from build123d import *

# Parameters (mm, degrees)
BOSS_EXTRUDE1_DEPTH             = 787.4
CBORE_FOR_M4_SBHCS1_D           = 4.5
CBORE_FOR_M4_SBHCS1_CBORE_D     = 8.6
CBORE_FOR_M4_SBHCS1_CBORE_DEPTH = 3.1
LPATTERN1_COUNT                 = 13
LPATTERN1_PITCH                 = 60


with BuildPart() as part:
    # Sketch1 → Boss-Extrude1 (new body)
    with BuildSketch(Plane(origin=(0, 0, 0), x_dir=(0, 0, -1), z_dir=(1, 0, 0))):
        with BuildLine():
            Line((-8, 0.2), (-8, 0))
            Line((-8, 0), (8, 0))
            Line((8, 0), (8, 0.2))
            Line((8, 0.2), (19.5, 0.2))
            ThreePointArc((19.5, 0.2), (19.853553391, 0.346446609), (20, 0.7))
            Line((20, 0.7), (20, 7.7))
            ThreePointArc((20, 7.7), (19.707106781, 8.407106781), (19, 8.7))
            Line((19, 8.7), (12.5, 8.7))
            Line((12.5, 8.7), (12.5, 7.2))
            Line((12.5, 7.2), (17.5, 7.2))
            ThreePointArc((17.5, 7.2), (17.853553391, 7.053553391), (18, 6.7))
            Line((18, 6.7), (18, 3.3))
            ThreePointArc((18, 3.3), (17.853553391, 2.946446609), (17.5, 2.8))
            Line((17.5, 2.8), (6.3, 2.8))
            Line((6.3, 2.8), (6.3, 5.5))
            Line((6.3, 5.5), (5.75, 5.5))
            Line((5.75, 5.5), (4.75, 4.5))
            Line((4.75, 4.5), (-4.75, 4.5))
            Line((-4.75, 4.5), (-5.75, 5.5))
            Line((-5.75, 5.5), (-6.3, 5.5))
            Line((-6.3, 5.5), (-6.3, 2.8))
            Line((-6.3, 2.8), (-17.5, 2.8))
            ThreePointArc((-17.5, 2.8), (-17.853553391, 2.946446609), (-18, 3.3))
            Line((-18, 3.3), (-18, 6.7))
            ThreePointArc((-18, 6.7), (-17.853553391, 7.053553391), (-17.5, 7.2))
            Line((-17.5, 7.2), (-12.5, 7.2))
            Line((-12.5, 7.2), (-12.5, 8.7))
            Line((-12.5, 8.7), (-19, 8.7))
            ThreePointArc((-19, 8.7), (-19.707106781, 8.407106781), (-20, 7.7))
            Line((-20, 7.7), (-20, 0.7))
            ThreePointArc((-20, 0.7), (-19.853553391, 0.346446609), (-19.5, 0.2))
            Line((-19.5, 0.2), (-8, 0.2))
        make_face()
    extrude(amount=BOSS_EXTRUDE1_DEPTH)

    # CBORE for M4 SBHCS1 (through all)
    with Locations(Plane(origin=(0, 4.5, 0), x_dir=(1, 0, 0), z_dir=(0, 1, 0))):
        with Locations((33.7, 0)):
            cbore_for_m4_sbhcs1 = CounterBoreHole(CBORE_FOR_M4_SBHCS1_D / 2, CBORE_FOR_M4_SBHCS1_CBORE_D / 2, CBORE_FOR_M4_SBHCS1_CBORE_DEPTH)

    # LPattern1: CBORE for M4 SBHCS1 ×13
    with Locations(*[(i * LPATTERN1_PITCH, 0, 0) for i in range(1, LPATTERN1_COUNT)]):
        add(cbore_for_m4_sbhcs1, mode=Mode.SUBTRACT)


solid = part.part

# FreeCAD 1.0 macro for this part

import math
import FreeCAD as App
import Part
import Sketcher
from FreeCAD import Vector
Q = App.Units.Quantity

doc = App.newDocument("Part")
body = doc.addObject("PartDesign::Body", "Body")

sketch1 = doc.addObject("Sketcher::SketchObject", "Sketch")
body.addObject(sketch1)
sketch1.AttachmentSupport = (doc.YZ_Plane, [""])
sketch1.MapMode = "FlatFace"
sketch1.addGeometry([
    Part.LineSegment(Vector(0.2, 8, 0), Vector(0, 8, 0)),
    Part.LineSegment(Vector(0, 8, 0), Vector(0, -8, 0)),
    Part.LineSegment(Vector(0, -8, 0), Vector(0.2, -8, 0)),
    Part.LineSegment(Vector(0.2, -8, 0), Vector(0.2, -19.5, 0)),
    Part.ArcOfCircle(Part.Circle(Vector(0.7, -19.5, 0), Vector(0, 0, 1), 0.5), math.radians(180), math.radians(270)),
    Part.LineSegment(Vector(0.7, -20, 0), Vector(7.7, -20, 0)),
    Part.ArcOfCircle(Part.Circle(Vector(7.7, -19, 0), Vector(0, 0, 1), 1), math.radians(-90), math.radians(0)),
    Part.LineSegment(Vector(8.7, -19, 0), Vector(8.7, -12.5, 0)),
    Part.LineSegment(Vector(8.7, -12.5, 0), Vector(7.2, -12.5, 0)),
    Part.LineSegment(Vector(7.2, -12.5, 0), Vector(7.2, -17.5, 0)),
    Part.ArcOfCircle(Part.Circle(Vector(6.7, -17.5, 0), Vector(0, 0, 1), 0.5), math.radians(-90), math.radians(0)),
    Part.LineSegment(Vector(6.7, -18, 0), Vector(3.3, -18, 0)),
    Part.ArcOfCircle(Part.Circle(Vector(3.3, -17.5, 0), Vector(0, 0, 1), 0.5), math.radians(180), math.radians(270)),
    Part.LineSegment(Vector(2.8, -17.5, 0), Vector(2.8, -6.3, 0)),
    Part.LineSegment(Vector(2.8, -6.3, 0), Vector(5.5, -6.3, 0)),
    Part.LineSegment(Vector(5.5, -6.3, 0), Vector(5.5, -5.75, 0)),
    Part.LineSegment(Vector(5.5, -5.75, 0), Vector(4.5, -4.75, 0)),
    Part.LineSegment(Vector(4.5, -4.75, 0), Vector(4.5, 4.75, 0)),
    Part.LineSegment(Vector(4.5, 4.75, 0), Vector(5.5, 5.75, 0)),
    Part.LineSegment(Vector(5.5, 5.75, 0), Vector(5.5, 6.3, 0)),
    Part.LineSegment(Vector(5.5, 6.3, 0), Vector(2.8, 6.3, 0)),
    Part.LineSegment(Vector(2.8, 6.3, 0), Vector(2.8, 17.5, 0)),
    Part.ArcOfCircle(Part.Circle(Vector(3.3, 17.5, 0), Vector(0, 0, 1), 0.5), math.radians(90), math.radians(180)),
    Part.LineSegment(Vector(3.3, 18, 0), Vector(6.7, 18, 0)),
    Part.ArcOfCircle(Part.Circle(Vector(6.7, 17.5, 0), Vector(0, 0, 1), 0.5), math.radians(0), math.radians(90)),
    Part.LineSegment(Vector(7.2, 17.5, 0), Vector(7.2, 12.5, 0)),
    Part.LineSegment(Vector(7.2, 12.5, 0), Vector(8.7, 12.5, 0)),
    Part.LineSegment(Vector(8.7, 12.5, 0), Vector(8.7, 19, 0)),
    Part.ArcOfCircle(Part.Circle(Vector(7.7, 19, 0), Vector(0, 0, 1), 1), math.radians(0), math.radians(90)),
    Part.LineSegment(Vector(7.7, 20, 0), Vector(0.7, 20, 0)),
    Part.ArcOfCircle(Part.Circle(Vector(0.7, 19.5, 0), Vector(0, 0, 1), 0.5), math.radians(90), math.radians(180)),
    Part.LineSegment(Vector(0.2, 19.5, 0), Vector(0.2, 8, 0)),
], False)
sketch1.addConstraint([
    Sketcher.Constraint("Coincident", 0, 2, 1, 1),
    Sketcher.Constraint("Coincident", 1, 2, 2, 1),
    Sketcher.Constraint("Coincident", 2, 2, 3, 1),
    Sketcher.Constraint("Tangent", 3, 2, 4, 1),
    Sketcher.Constraint("Tangent", 4, 2, 5, 1),
    Sketcher.Constraint("Tangent", 5, 2, 6, 1),
    Sketcher.Constraint("Tangent", 6, 2, 7, 1),
    Sketcher.Constraint("Coincident", 7, 2, 8, 1),
    Sketcher.Constraint("Coincident", 8, 2, 9, 1),
    Sketcher.Constraint("Tangent", 9, 2, 10, 2),
    Sketcher.Constraint("Tangent", 10, 1, 11, 1),
    Sketcher.Constraint("Tangent", 11, 2, 12, 2),
    Sketcher.Constraint("Tangent", 12, 1, 13, 1),
    Sketcher.Constraint("Coincident", 13, 2, 14, 1),
    Sketcher.Constraint("Coincident", 14, 2, 15, 1),
    Sketcher.Constraint("Coincident", 15, 2, 16, 1),
    Sketcher.Constraint("Coincident", 16, 2, 17, 1),
    Sketcher.Constraint("Coincident", 17, 2, 18, 1),
    Sketcher.Constraint("Coincident", 18, 2, 19, 1),
    Sketcher.Constraint("Coincident", 19, 2, 20, 1),
    Sketcher.Constraint("Coincident", 20, 2, 21, 1),
    Sketcher.Constraint("Tangent", 21, 2, 22, 2),
    Sketcher.Constraint("Tangent", 22, 1, 23, 1),
    Sketcher.Constraint("Tangent", 23, 2, 24, 2),
    Sketcher.Constraint("Tangent", 24, 1, 25, 1),
    Sketcher.Constraint("Coincident", 25, 2, 26, 1),
    Sketcher.Constraint("Coincident", 26, 2, 27, 1),
    Sketcher.Constraint("Tangent", 27, 2, 28, 1),
    Sketcher.Constraint("Tangent", 28, 2, 29, 1),
    Sketcher.Constraint("Tangent", 29, 2, 30, 1),
    Sketcher.Constraint("Tangent", 30, 2, 31, 1),
    Sketcher.Constraint("Coincident", 31, 2, 0, 1),
    Sketcher.Constraint("Horizontal", 0),
    Sketcher.Constraint("Vertical", 1),
    Sketcher.Constraint("Horizontal", 2),
    Sketcher.Constraint("Vertical", 3),
    Sketcher.Constraint("Horizontal", 5),
    Sketcher.Constraint("Vertical", 7),
    Sketcher.Constraint("Horizontal", 8),
    Sketcher.Constraint("Vertical", 9),
    Sketcher.Constraint("Horizontal", 11),
    Sketcher.Constraint("Vertical", 13),
    Sketcher.Constraint("Horizontal", 14),
    Sketcher.Constraint("Vertical", 15),
    Sketcher.Constraint("Vertical", 17),
    Sketcher.Constraint("Vertical", 19),
    Sketcher.Constraint("Horizontal", 20),
    Sketcher.Constraint("Vertical", 21),
    Sketcher.Constraint("Horizontal", 23),
    Sketcher.Constraint("Vertical", 25),
    Sketcher.Constraint("Horizontal", 26),
    Sketcher.Constraint("Vertical", 27),
    Sketcher.Constraint("Horizontal", 29),
    Sketcher.Constraint("Vertical", 31),
    Sketcher.Constraint("Equal", 4, 10),
    Sketcher.Constraint("Equal", 10, 12),
    Sketcher.Constraint("Equal", 12, 22),
    Sketcher.Constraint("Equal", 22, 24),
    Sketcher.Constraint("Equal", 6, 28),
    Sketcher.Constraint("Equal", 24, 30),
    Sketcher.Constraint("Symmetric", 0, 2, 1, 2, -1, 1),
    Sketcher.Constraint("Symmetric", 12, 3, 22, 3, -1),
    Sketcher.Constraint("Symmetric", 6, 3, 28, 3, -1),
    Sketcher.Constraint("Symmetric", 15, 2, 18, 2, -1),
    Sketcher.Constraint("Symmetric", 8, 2, 25, 2, -1),
    Sketcher.Constraint("Perpendicular", 16, 18),
    Sketcher.Constraint("Vertical", 4, 3, 30, 3),
    Sketcher.Constraint("Equal", 15, 19),
    Sketcher.Constraint("Equal", 16, 18),
    Sketcher.Constraint("Radius", 6, Q("1 mm")),
    Sketcher.Constraint("Radius", 4, Q("0.5 mm")),
    Sketcher.Constraint("DistanceX", 5, 1, 5, 2, Q("7 mm")),
    Sketcher.Constraint("DistanceY", 1, 2, 1, 1, Q("16 mm")),
    Sketcher.Constraint("DistanceY", 9, 2, 9, 1, Q("5 mm")),
    Sketcher.Constraint("DistanceX", 0, 2, 0, 1, Q("0.2 mm")),
    Sketcher.Constraint("DistanceX", 8, 2, 8, 1, Q("1.5 mm")),
    Sketcher.Constraint("DistanceX", 11, 2, 11, 1, Q("3.4 mm")),
    Sketcher.Constraint("DistanceX", 14, 1, 14, 2, Q("2.7 mm")),
    Sketcher.Constraint("DistanceY", 3, 2, 3, 1, Q("11.5 mm")),
    Sketcher.Constraint("DistanceY", 7, 1, 7, 2, Q("6.5 mm")),
    Sketcher.Constraint("DistanceY", 13, 1, 13, 2, Q("11.2 mm")),
    Sketcher.Constraint("DistanceY", 17, 1, 17, 2, Q("9.5 mm")),
    Sketcher.Constraint("DistanceX", 16, 2, 15, 2, Q("1 mm")),
])
pad1 = doc.addObject("PartDesign::Pad", "Pad")
body.addObject(pad1)
pad1.Profile = sketch1
pad1.Length = 787.4

sketch2 = doc.addObject("Sketcher::SketchObject", "Sketch001")
body.addObject(sketch2)
sketch2.AttachmentSupport = (doc.XZ_Plane, [""])
sketch2.MapMode = "FlatFace"
sketch2.AttachmentOffset = App.Placement(Vector(0, 0, -4.5), App.Rotation())
sketch2.addGeometry(Part.Circle(Vector(33.7, 0, 0), Vector(0, 0, 1), 2.25), False)
sketch2.addConstraint([
    Sketcher.Constraint("PointOnObject", 0, 3, -1),
    Sketcher.Constraint("Diameter", 0, Q("4.5 mm")),
    Sketcher.Constraint("DistanceX", -1, 1, 0, 3, Q("33.7 mm")),
])
doc.recompute()
hole = doc.addObject("PartDesign::Hole", "Hole")
body.addObject(hole)
hole.Profile = sketch2
hole.ThreadType = "None"
hole.Diameter = 4.5
hole.DepthType = "ThroughAll"
hole.HoleCutType = "Counterbore"
hole.HoleCutDiameter = 8.6
hole.HoleCutDepth = 3.1
hole.Reversed = True
doc.recompute()

linearpattern = doc.addObject("PartDesign::LinearPattern", "LinearPattern")
body.addObject(linearpattern)
linearpattern.Originals = [hole]
linearpattern.Direction = (doc.X_Axis, [""])
linearpattern.Mode = "offset"
linearpattern.Offset = 60
linearpattern.Occurrences = 13
body.Tip = linearpattern

doc.recompute()
